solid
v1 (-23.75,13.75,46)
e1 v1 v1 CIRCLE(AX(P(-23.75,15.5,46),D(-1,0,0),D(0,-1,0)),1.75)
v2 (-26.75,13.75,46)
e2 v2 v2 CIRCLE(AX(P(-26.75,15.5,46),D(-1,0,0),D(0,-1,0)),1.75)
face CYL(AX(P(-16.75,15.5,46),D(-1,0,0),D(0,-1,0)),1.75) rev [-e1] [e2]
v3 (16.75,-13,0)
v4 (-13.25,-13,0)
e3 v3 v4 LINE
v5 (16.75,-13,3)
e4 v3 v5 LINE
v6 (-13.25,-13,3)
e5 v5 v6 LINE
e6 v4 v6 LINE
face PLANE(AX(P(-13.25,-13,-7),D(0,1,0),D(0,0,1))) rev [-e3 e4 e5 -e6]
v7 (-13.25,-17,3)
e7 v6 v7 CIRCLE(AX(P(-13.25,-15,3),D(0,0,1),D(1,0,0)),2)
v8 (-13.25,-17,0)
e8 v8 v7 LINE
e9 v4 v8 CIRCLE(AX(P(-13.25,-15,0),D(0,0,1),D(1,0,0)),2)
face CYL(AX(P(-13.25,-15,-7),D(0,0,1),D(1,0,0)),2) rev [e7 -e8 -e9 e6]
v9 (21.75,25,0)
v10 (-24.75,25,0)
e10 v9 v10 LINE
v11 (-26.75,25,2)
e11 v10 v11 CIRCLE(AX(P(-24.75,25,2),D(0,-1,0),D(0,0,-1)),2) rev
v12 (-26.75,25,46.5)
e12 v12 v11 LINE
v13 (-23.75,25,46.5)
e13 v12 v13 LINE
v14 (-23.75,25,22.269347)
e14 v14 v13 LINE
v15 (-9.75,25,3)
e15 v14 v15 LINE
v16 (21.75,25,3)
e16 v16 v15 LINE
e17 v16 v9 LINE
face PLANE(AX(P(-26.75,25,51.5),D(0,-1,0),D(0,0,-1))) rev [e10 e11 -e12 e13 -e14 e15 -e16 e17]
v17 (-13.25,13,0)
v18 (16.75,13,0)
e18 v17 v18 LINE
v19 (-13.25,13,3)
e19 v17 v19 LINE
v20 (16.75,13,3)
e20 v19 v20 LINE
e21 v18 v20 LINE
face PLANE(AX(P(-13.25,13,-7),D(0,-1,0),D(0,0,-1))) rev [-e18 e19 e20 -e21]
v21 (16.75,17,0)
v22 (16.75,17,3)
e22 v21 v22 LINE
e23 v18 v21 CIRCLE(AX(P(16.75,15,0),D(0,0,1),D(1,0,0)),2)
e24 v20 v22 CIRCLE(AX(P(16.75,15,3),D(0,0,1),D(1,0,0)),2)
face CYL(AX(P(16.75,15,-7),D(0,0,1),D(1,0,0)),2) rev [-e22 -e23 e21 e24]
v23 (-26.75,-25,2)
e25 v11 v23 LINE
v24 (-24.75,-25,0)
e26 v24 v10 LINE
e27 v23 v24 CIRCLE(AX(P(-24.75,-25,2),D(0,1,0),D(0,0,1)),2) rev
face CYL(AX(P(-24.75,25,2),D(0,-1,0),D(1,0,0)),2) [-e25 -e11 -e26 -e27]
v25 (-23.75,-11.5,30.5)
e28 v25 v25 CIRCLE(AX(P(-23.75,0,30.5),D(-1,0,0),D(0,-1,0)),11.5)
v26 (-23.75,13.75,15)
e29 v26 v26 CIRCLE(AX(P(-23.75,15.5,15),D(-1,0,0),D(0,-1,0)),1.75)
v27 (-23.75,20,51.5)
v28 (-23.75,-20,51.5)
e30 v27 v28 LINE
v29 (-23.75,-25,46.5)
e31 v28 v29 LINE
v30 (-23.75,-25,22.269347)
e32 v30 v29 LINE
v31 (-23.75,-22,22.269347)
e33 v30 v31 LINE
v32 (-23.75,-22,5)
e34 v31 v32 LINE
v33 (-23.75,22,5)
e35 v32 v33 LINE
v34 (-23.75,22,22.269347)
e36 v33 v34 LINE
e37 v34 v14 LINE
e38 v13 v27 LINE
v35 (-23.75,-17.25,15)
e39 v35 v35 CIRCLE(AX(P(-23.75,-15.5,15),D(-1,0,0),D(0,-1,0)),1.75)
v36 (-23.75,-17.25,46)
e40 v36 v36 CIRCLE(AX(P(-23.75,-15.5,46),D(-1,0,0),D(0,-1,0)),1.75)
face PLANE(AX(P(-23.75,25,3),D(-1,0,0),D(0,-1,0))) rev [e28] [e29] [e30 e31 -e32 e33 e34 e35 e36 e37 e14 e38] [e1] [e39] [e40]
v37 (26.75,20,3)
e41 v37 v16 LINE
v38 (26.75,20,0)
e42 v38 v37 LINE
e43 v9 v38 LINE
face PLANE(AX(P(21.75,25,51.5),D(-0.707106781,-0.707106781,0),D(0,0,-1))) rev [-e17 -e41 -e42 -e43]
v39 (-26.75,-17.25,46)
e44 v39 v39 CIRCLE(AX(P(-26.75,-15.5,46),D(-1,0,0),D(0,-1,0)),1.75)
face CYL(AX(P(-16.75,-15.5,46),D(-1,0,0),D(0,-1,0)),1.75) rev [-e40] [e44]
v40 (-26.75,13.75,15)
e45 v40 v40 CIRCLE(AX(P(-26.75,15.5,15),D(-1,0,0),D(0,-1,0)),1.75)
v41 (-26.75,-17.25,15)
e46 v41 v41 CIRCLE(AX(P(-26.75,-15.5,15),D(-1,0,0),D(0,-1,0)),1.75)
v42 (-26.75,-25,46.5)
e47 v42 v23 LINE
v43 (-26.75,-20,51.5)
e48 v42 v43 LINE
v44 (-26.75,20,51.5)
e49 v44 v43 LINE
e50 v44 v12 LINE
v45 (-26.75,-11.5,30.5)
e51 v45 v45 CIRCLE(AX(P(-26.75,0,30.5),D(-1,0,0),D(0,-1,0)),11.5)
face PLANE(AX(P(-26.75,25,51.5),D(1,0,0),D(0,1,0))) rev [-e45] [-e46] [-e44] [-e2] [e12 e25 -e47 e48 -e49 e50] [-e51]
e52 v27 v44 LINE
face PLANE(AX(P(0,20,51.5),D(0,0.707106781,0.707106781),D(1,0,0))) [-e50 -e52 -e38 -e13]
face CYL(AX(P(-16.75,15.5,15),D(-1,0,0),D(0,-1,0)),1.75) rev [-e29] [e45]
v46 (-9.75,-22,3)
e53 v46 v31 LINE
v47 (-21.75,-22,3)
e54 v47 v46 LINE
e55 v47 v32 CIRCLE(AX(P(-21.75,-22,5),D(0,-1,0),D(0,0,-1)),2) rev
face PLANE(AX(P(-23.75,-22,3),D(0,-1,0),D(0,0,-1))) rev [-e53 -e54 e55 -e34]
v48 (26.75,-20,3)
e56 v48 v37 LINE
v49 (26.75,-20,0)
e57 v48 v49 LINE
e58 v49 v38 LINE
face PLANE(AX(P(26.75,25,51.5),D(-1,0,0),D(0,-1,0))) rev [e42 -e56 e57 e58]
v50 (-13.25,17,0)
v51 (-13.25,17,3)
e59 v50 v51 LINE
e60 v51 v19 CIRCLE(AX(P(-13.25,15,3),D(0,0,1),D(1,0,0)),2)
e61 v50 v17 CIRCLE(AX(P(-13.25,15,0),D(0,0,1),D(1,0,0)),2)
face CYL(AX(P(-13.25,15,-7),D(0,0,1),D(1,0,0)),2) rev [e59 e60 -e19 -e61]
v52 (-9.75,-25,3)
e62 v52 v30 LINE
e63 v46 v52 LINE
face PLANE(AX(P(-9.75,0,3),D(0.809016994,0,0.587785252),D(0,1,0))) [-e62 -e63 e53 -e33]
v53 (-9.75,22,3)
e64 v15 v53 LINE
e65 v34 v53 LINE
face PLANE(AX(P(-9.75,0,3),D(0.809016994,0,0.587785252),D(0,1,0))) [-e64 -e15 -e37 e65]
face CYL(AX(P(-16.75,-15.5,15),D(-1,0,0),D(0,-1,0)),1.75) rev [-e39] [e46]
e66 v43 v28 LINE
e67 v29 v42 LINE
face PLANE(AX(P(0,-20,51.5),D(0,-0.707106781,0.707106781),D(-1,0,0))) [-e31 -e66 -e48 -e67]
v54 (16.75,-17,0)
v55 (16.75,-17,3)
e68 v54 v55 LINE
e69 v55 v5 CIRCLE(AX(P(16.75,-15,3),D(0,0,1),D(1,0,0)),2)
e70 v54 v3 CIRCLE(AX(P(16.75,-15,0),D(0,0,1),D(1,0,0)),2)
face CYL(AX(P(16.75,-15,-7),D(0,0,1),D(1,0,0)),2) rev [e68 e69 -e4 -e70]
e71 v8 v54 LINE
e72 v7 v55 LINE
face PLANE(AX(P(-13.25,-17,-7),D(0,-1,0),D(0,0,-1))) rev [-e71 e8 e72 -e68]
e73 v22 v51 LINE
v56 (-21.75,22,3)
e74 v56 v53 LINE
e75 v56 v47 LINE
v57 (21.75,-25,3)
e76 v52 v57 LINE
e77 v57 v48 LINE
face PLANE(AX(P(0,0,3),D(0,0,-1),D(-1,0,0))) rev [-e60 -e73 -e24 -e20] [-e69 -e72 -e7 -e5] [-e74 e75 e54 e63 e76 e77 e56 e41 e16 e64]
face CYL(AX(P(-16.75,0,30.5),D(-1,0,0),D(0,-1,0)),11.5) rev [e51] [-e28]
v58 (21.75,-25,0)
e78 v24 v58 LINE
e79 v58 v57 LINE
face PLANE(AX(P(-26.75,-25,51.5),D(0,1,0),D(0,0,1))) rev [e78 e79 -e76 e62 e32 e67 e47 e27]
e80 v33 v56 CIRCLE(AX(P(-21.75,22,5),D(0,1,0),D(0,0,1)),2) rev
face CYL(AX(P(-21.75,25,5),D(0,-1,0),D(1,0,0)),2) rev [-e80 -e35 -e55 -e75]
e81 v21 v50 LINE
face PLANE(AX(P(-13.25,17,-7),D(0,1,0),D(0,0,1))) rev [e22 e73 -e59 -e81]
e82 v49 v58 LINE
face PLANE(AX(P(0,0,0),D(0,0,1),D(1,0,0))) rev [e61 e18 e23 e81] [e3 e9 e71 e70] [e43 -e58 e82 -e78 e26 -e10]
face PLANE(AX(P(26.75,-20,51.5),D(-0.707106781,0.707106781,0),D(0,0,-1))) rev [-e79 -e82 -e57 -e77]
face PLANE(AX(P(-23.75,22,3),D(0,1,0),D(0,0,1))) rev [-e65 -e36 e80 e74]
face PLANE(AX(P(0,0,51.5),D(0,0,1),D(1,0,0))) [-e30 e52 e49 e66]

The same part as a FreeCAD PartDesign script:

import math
import FreeCAD as App
import Part
import Sketcher


def edges_at(feature, points):
    """Names of the edges that pass closest to the given points."""
    edges = feature.Shape.Edges
    near = lambda p: min(range(len(edges)), key=lambda i: edges[i].distToShape(Part.Vertex(*p))[0])
    return sorted({f"Edge{near(p) + 1}" for p in points})

doc = App.newDocument("Part")
params = doc.addObject("Spreadsheet::Sheet", "Params")
for row, (alias, value) in enumerate([
    ("sketch1_height", "50 mm"),
    ("sketch1_width", "53.5 mm"),
    ("pad1_length", "51.5 mm"),
    ("sketch2_height", "50 mm"),
    ("sketch2_width", "50.5 mm"),
    ("pocket1_length", "48.5 mm"),
    ("chamfer_size", "14 mm"),
    ("chamfer_size2", "19.269347 mm"),
    ("sketch3_width", "44 mm"),
    ("sketch3_height", "48.5 mm"),
    ("pocket2_length", "50.5 mm"),
    ("sketch4_diameter", "23 mm"),
    ("sketch4_diameter2", "3.5 mm"),
    ("pocket3_length", "10 mm"),
    ("sketch5_radius", "2 mm"),
    ("sketch5_width", "30 mm"),
    ("pocket4_length", "10 mm"),
    ("chamfer2_size", "5 mm"),
    ("fillet_radius", "2 mm"),
], start=1):
    params.set(f"A{row}", alias)
    params.set(f"B{row}", "=" + value)
    params.setAlias(f"B{row}", alias)

body = doc.addObject("PartDesign::Body", "Body")

# Sketch on XY plane
sketch1 = doc.addObject("Sketcher::SketchObject", "Sketch")
body.addObject(sketch1)
sketch1.AttachmentSupport = (doc.XY_Plane, [""])
sketch1.MapMode = "FlatFace"
sketch1.addGeometry([
    Part.LineSegment(App.Vector(-27, 25, 0), App.Vector(-27, -25, 0)),
    Part.LineSegment(App.Vector(-27, -25, 0), App.Vector(27, -25, 0)),
    Part.LineSegment(App.Vector(27, -25, 0), App.Vector(27, 25, 0)),
    Part.LineSegment(App.Vector(27, 25, 0), App.Vector(-27, 25, 0)),
], False)
sketch1.addConstraint([
    Sketcher.Constraint("Coincident", 0, 2, 1, 1),
    Sketcher.Constraint("Coincident", 1, 2, 2, 1),
    Sketcher.Constraint("Coincident", 2, 2, 3, 1),
    Sketcher.Constraint("Coincident", 3, 2, 0, 1),
    Sketcher.Constraint("Vertical", 0),
    Sketcher.Constraint("Horizontal", 1),
    Sketcher.Constraint("Vertical", 2),
    Sketcher.Constraint("Horizontal", 3),
    Sketcher.Constraint("Symmetric", 0, 2, 2, 2, -1, 1),
    Sketcher.Constraint("DistanceY", 0, 2, 0, 1, 50.0),
    Sketcher.Constraint("DistanceX", 1, 1, 1, 2, 53.5),
])
sketch1.setExpression("Constraints[9]", "Params.sketch1_height")
sketch1.setExpression("Constraints[10]", "Params.sketch1_width")
pad1 = doc.addObject("PartDesign::Pad", "Pad")
body.addObject(pad1)
pad1.Profile = sketch1
pad1.setExpression("Length", "Params.pad1_length")

# Sketch on XY plane
sketch2 = doc.addObject("Sketcher::SketchObject", "Sketch001")
body.addObject(sketch2)
sketch2.AttachmentSupport = (doc.XY_Plane, [""])
sketch2.MapMode = "FlatFace"
sketch2.AttachmentOffset = App.Placement(App.Vector(0, 0, 51.5), App.Rotation())
sketch2.addGeometry([
    Part.LineSegment(App.Vector(-24, 25, 0), App.Vector(-24, -25, 0)),
    Part.LineSegment(App.Vector(-24, -25, 0), App.Vector(27, -25, 0)),
    Part.LineSegment(App.Vector(27, -25, 0), App.Vector(27, 25, 0)),
    Part.LineSegment(App.Vector(27, 25, 0), App.Vector(-24, 25, 0)),
], False)
sketch2.addConstraint([
    Sketcher.Constraint("Coincident", 0, 2, 1, 1),
    Sketcher.Constraint("Coincident", 1, 2, 2, 1),
    Sketcher.Constraint("Coincident", 2, 2, 3, 1),
    Sketcher.Constraint("Coincident", 3, 2, 0, 1),
    Sketcher.Constraint("Vertical", 0),
    Sketcher.Constraint("Horizontal", 1),
    Sketcher.Constraint("Vertical", 2),
    Sketcher.Constraint("Horizontal", 3),
    Sketcher.Constraint("DistanceY", 0, 2, 0, 1, 50.0),
    Sketcher.Constraint("DistanceX", 1, 1, 1, 2, 50.5),
    Sketcher.Constraint("DistanceY", 0, 2, -1, 1, 25.0),
    Sketcher.Constraint("DistanceX", 0, 2, -1, 1, 23.75),
])
sketch2.setExpression("Constraints[8]", "Params.sketch2_height")
sketch2.setExpression("Constraints[9]", "Params.sketch2_width")
pocket1 = doc.addObject("PartDesign::Pocket", "Pocket")
body.addObject(pocket1)
pocket1.Profile = sketch2
pocket1.setExpression("Length", "Params.pocket1_length")
doc.recompute()

chamfer = doc.addObject("PartDesign::Chamfer", "Chamfer")
body.addObject(chamfer)
chamfer.Base = (pocket1, edges_at(pocket1, [(-23.75, 0, 3)]))
chamfer.ChamferType = "Two distances"
chamfer.setExpression("Size", "Params.chamfer_size")
chamfer.setExpression("Size2", "Params.chamfer_size2")
chamfer.FlipDirection = True

# Sketch on YZ plane
sketch3 = doc.addObject("Sketcher::SketchObject", "Sketch002")
body.addObject(sketch3)
sketch3.AttachmentSupport = (doc.YZ_Plane, [""])
sketch3.MapMode = "FlatFace"
sketch3.AttachmentOffset = App.Placement(App.Vector(0, 0, 26.75), App.Rotation())
sketch3.addGeometry([
    Part.LineSegment(App.Vector(22, 52, 0), App.Vector(-22, 52, 0)),
    Part.LineSegment(App.Vector(-22, 52, 0), App.Vector(-22, 3, 0)),
    Part.LineSegment(App.Vector(-22, 3, 0), App.Vector(22, 3, 0)),
    Part.LineSegment(App.Vector(22, 3, 0), App.Vector(22, 52, 0)),
], False)
sketch3.addConstraint([
    Sketcher.Constraint("Coincident", 0, 2, 1, 1),
    Sketcher.Constraint("Coincident", 1, 2, 2, 1),
    Sketcher.Constraint("Coincident", 2, 2, 3, 1),
    Sketcher.Constraint("Coincident", 3, 2, 0, 1),
    Sketcher.Constraint("Horizontal", 0),
    Sketcher.Constraint("Vertical", 1),
    Sketcher.Constraint("Horizontal", 2),
    Sketcher.Constraint("Vertical", 3),
    Sketcher.Constraint("DistanceX", 0, 2, 0, 1, 44.0),
    Sketcher.Constraint("DistanceY", 1, 2, 1, 1, 48.5),
    Sketcher.Constraint("DistanceX", 0, 2, -1, 1, 22.0),
    Sketcher.Constraint("DistanceY", -1, 1, 1, 2, 3.0),
])
sketch3.setExpression("Constraints[8]", "Params.sketch3_width")
sketch3.setExpression("Constraints[9]", "Params.sketch3_height")
pocket2 = doc.addObject("PartDesign::Pocket", "Pocket001")
body.addObject(pocket2)
pocket2.Profile = sketch3
pocket2.setExpression("Length", "Params.pocket2_length")

# Sketch on YZ plane
sketch4 = doc.addObject("Sketcher::SketchObject", "Sketch003")
body.addObject(sketch4)
sketch4.AttachmentSupport = (doc.YZ_Plane, [""])
sketch4.MapMode = "FlatFace"
sketch4.AttachmentOffset = App.Placement(App.Vector(0, 0, -26.75), App.Rotation())
sketch4.addGeometry([
    Part.Circle(App.Vector(15.5, 46, 0), App.Vector(0, 0, 1), 1.8),  # 0
    Part.Circle(App.Vector(-15.5, 46, 0), App.Vector(0, 0, 1), 1.8),  # 1
    Part.Circle(App.Vector(15.5, 15, 0), App.Vector(0, 0, 1), 1.8),  # 2
    Part.Circle(App.Vector(-15.5, 15, 0), App.Vector(0, 0, 1), 1.8),  # 3
    Part.Circle(App.Vector(0, 30.5, 0), App.Vector(0, 0, 1), 11.5),  # 4
], False)
sketch4.addConstraint([
    Sketcher.Constraint("Equal", 0, 1),
    Sketcher.Constraint("Equal", 1, 2),
    Sketcher.Constraint("Equal", 2, 3),
    Sketcher.Constraint("Symmetric", 0, 3, 1, 3, -2),
    Sketcher.Constraint("Symmetric", 2, 3, 3, 3, -2),
    Sketcher.Constraint("PointOnObject", 4, 3, -2),
    Sketcher.Constraint("Vertical", 0, 3, 2, 3),
    Sketcher.Constraint("Diameter", 4, 23.0),
    Sketcher.Constraint("Diameter", 0, 3.5),
    Sketcher.Constraint("DistanceY", -1, 1, 0, 3, 46.0),
    Sketcher.Constraint("DistanceY", -1, 1, 2, 3, 15.0),
    Sketcher.Constraint("DistanceX", 1, 3, 0, 3, 31.0),
    Sketcher.Constraint("DistanceY", -1, 1, 4, 3, 30.5),
])
sketch4.setExpression("Constraints[7]", "Params.sketch4_diameter")
sketch4.setExpression("Constraints[8]", "Params.sketch4_diameter2")
pocket3 = doc.addObject("PartDesign::Pocket", "Pocket002")
body.addObject(pocket3)
pocket3.Profile = sketch4
pocket3.setExpression("Length", "Params.pocket3_length")
pocket3.Reversed = True

# Sketch on XY plane
sketch5 = doc.addObject("Sketcher::SketchObject", "Sketch004")
body.addObject(sketch5)
sketch5.AttachmentSupport = (doc.XY_Plane, [""])
sketch5.MapMode = "FlatFace"
sketch5.AttachmentOffset = App.Placement(App.Vector(0, 0, 3), App.Rotation())
sketch5.addGeometry([
    Part.LineSegment(App.Vector(16.8, 17, 0), App.Vector(-13.2, 17, 0)),  # 0
    Part.ArcOfCircle(Part.Circle(App.Vector(-13.2, 15, 0), App.Vector(0, 0, 1), 2), math.radians(90), math.radians(270)),  # 1
    Part.LineSegment(App.Vector(-13.2, 13, 0), App.Vector(16.8, 13, 0)),  # 2
    Part.ArcOfCircle(Part.Circle(App.Vector(16.8, 15, 0), App.Vector(0, 0, 1), 2), math.radians(-90), math.radians(90)),  # 3
    Part.LineSegment(App.Vector(16.8, -13, 0), App.Vector(-13.2, -13, 0)),  # 4
    Part.ArcOfCircle(Part.Circle(App.Vector(-13.2, -15, 0), App.Vector(0, 0, 1), 2), math.radians(90), math.radians(270)),  # 5
    Part.LineSegment(App.Vector(-13.2, -17, 0), App.Vector(16.8, -17, 0)),  # 6
    Part.ArcOfCircle(Part.Circle(App.Vector(16.8, -15, 0), App.Vector(0, 0, 1), 2), math.radians(-90), math.radians(90)),  # 7
], False)
sketch5.addConstraint([
    Sketcher.Constraint("Tangent", 0, 2, 1, 1),
    Sketcher.Constraint("Tangent", 1, 2, 2, 1),
    Sketcher.Constraint("Tangent", 2, 2, 3, 1),
    Sketcher.Constraint("Tangent", 3, 2, 0, 1),
    Sketcher.Constraint("Tangent", 4, 2, 5, 1),
    Sketcher.Constraint("Tangent", 5, 2, 6, 1),
    Sketcher.Constraint("Tangent", 6, 2, 7, 1),
    Sketcher.Constraint("Tangent", 7, 2, 4, 1),
    Sketcher.Constraint("Horizontal", 0),
    Sketcher.Constraint("Horizontal", 2),
    Sketcher.Constraint("Horizontal", 4),
    Sketcher.Constraint("Horizontal", 6),
    Sketcher.Constraint("Equal", 3, 5),
    Sketcher.Constraint("Symmetric", 1, 3, 5, 3, -1),
    Sketcher.Constraint("Vertical", 3, 3, 7, 3),
    Sketcher.Constraint("Radius", 1, 2.0),
    Sketcher.Constraint("DistanceX", 0, 2, 0, 1, 30.0),
    Sketcher.Constraint("DistanceY", -1, 1, 1, 3, 15.0),
    Sketcher.Constraint("DistanceX", 1, 3, -1, 1, 13.25),
])
sketch5.setExpression("Constraints[15]", "Params.sketch5_radius")
sketch5.setExpression("Constraints[16]", "Params.sketch5_width")
pocket4 = doc.addObject("PartDesign::Pocket", "Pocket003")
body.addObject(pocket4)
pocket4.Profile = sketch5
pocket4.setExpression("Length", "Params.pocket4_length")
doc.recompute()

chamfer2 = doc.addObject("PartDesign::Chamfer", "Chamfer001")
body.addObject(chamfer2)
chamfer2.Base = (pocket4, edges_at(pocket4, [
    (-25.25, -25, 51.5),
    (-25.25, 25, 51.5),
    (26.75, -25, 1.5),
    (26.75, 25, 1.5),
]))
chamfer2.setExpression("Size", "Params.chamfer2_size")
doc.recompute()

fillet = doc.addObject("PartDesign::Fillet", "Fillet")
body.addObject(fillet)
fillet.Base = (chamfer2, edges_at(chamfer2, [(-23.75, 0, 3), (-26.75, 0, 0)]))
fillet.setExpression("Radius", "Params.fillet_radius")

doc.recompute()
